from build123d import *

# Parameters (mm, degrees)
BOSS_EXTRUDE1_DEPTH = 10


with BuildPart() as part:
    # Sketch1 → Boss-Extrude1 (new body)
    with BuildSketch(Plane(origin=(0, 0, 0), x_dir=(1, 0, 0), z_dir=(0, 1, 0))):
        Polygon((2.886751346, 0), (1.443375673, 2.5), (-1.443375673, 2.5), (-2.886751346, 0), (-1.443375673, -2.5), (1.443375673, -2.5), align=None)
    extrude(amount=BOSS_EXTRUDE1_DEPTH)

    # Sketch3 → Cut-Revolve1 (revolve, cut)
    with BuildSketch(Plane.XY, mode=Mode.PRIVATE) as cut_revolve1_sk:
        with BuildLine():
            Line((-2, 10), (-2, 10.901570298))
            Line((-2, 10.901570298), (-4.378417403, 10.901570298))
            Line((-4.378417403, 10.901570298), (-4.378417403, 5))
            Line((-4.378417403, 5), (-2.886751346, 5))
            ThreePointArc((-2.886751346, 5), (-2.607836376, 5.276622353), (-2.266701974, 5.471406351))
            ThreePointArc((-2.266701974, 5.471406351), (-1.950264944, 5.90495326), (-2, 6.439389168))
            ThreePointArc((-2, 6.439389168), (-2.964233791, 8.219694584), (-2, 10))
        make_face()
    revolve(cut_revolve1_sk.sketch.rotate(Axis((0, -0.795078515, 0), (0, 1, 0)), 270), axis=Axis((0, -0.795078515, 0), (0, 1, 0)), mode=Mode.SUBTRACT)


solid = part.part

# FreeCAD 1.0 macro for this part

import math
import FreeCAD as App
import Part
import Sketcher
from FreeCAD import Vector
Q = App.Units.Quantity

doc = App.newDocument("Part")
body = doc.addObject("PartDesign::Body", "Body")

sketch1 = body.newObject("Sketcher::SketchObject", "Sketch")
sketch1.AttachmentSupport = (doc.getObject("XZ_Plane"), [""])
sketch1.MapMode = "FlatFace"
sketch1.addGeometry([
    Part.LineSegment(Vector(2.9, 0, 0), Vector(1.4, -2.5, 0)),
    Part.LineSegment(Vector(1.4, -2.5, 0), Vector(-1.4, -2.5, 0)),
    Part.LineSegment(Vector(-1.4, -2.5, 0), Vector(-2.9, 0, 0)),
    Part.LineSegment(Vector(-2.9, 0, 0), Vector(-1.4, 2.5, 0)),
    Part.LineSegment(Vector(-1.4, 2.5, 0), Vector(1.4, 2.5, 0)),
    Part.LineSegment(Vector(1.4, 2.5, 0), Vector(2.9, 0, 0)),
], False)
sketch1.addConstraint([
    Sketcher.Constraint("Coincident", 0, 2, 1, 1),
    Sketcher.Constraint("Coincident", 1, 2, 2, 1),
    Sketcher.Constraint("Coincident", 2, 2, 3, 1),
    Sketcher.Constraint("Coincident", 3, 2, 4, 1),
    Sketcher.Constraint("Coincident", 4, 2, 5, 1),
    Sketcher.Constraint("Coincident", 5, 2, 0, 1),
    Sketcher.Constraint("Horizontal", 1),
    Sketcher.Constraint("Horizontal", 4),
    Sketcher.Constraint("Symmetric", 0, 2, 3, 2, -1, 1),
    Sketcher.Constraint("Symmetric", 2, 2, 5, 2, -1, 1),
    Sketcher.Constraint("PointOnObject", 2, 2, -1),
    Sketcher.Constraint("Parallel", 2, 5),
    Sketcher.Constraint("Vertical", 1, 2, 3, 2),
    Sketcher.Constraint("Angle", 0, Q("-120 deg")),
    Sketcher.Constraint("DistanceY", 1, 2, 3, 2, 5.0),
    Sketcher.Constraint("DistanceX", 1, 2, 1, 1, 2.886751),
])
pad1 = body.newObject("PartDesign::Pad", "Pad")
pad1.Profile = sketch1
pad1.Length = 10
pad1.Reversed = True

sketch2 = body.newObject("Sketcher::SketchObject", "Sketch001")
sketch2.AttachmentSupport = (doc.getObject("XY_Plane"), [""])
sketch2.MapMode = "FlatFace"
sketch2.addGeometry([
    Part.LineSegment(Vector(-2, 10, 0), Vector(-2, 10.9, 0)),
    Part.LineSegment(Vector(-2, 10.9, 0), Vector(-4.4, 10.9, 0)),
    Part.LineSegment(Vector(-4.4, 10.9, 0), Vector(-4.4, 5, 0)),
    Part.LineSegment(Vector(-4.4, 5, 0), Vector(-2.9, 5, 0)),
    Part.ArcOfCircle(Part.Circle(Vector(-1.7, 4.1, 0), Vector(0, 0, 1), 1.5), math.radians(112), math.radians(142)),
    Part.ArcOfCircle(Part.Circle(Vector(-2.7, 6.1, 0), Vector(0, 0, 1), 0.8), math.radians(-57), math.radians(26)),
    Part.ArcOfCircle(Part.Circle(Vector(-0.8, 8.2, 0), Vector(0, 0, 1), 2.1), math.radians(123), math.radians(237)),
], False)
sketch2.addConstraint([
    Sketcher.Constraint("Coincident", 0, 2, 1, 1),
    Sketcher.Constraint("Coincident", 1, 2, 2, 1),
    Sketcher.Constraint("Coincident", 2, 2, 3, 1),
    Sketcher.Constraint("Coincident", 3, 2, 4, 2),
    Sketcher.Constraint("Coincident", 4, 1, 5, 1),
    Sketcher.Constraint("Coincident", 5, 2, 6, 2),
    Sketcher.Constraint("Coincident", 6, 1, 0, 1),
    Sketcher.Constraint("Vertical", 0),
    Sketcher.Constraint("Horizontal", 1),
    Sketcher.Constraint("Vertical", 2),
    Sketcher.Constraint("Horizontal", 3),
    Sketcher.Constraint("Vertical", 0, 2, 5, 2),
    Sketcher.Constraint("DistanceX", 0, 2, -1, 1, 2.0),
    Sketcher.Constraint("DistanceY", -1, 1, 2, 2, 5.0),
    Sketcher.Constraint("DistanceY", -1, 1, 6, 1, 10.0),
    Sketcher.Constraint("Radius", 5, 0.758512),
    Sketcher.Constraint("Radius", 4, 1.501038),
    Sketcher.Constraint("Radius", 6, 2.125643),
    Sketcher.Constraint("DistanceY", 0, 1, 0, 2, 0.90157),
    Sketcher.Constraint("DistanceX", 4, 1, -1, 1, 2.266702),
    Sketcher.Constraint("DistanceX", 1, 2, 1, 1, 2.378417),
    Sketcher.Constraint("DistanceX", 3, 1, 3, 2, 1.491666),
    Sketcher.Constraint("DistanceY", -1, 1, 4, 3, 4.08171),
    Sketcher.Constraint("DistanceX", 5, 3, -1, 1, 2.681528),
])
groove = body.newObject("PartDesign::Groove", "Groove")
groove.Profile = sketch2
groove.ReferenceAxis = (sketch2, ["V_Axis"])
groove.Angle = 360

doc.recompute()
